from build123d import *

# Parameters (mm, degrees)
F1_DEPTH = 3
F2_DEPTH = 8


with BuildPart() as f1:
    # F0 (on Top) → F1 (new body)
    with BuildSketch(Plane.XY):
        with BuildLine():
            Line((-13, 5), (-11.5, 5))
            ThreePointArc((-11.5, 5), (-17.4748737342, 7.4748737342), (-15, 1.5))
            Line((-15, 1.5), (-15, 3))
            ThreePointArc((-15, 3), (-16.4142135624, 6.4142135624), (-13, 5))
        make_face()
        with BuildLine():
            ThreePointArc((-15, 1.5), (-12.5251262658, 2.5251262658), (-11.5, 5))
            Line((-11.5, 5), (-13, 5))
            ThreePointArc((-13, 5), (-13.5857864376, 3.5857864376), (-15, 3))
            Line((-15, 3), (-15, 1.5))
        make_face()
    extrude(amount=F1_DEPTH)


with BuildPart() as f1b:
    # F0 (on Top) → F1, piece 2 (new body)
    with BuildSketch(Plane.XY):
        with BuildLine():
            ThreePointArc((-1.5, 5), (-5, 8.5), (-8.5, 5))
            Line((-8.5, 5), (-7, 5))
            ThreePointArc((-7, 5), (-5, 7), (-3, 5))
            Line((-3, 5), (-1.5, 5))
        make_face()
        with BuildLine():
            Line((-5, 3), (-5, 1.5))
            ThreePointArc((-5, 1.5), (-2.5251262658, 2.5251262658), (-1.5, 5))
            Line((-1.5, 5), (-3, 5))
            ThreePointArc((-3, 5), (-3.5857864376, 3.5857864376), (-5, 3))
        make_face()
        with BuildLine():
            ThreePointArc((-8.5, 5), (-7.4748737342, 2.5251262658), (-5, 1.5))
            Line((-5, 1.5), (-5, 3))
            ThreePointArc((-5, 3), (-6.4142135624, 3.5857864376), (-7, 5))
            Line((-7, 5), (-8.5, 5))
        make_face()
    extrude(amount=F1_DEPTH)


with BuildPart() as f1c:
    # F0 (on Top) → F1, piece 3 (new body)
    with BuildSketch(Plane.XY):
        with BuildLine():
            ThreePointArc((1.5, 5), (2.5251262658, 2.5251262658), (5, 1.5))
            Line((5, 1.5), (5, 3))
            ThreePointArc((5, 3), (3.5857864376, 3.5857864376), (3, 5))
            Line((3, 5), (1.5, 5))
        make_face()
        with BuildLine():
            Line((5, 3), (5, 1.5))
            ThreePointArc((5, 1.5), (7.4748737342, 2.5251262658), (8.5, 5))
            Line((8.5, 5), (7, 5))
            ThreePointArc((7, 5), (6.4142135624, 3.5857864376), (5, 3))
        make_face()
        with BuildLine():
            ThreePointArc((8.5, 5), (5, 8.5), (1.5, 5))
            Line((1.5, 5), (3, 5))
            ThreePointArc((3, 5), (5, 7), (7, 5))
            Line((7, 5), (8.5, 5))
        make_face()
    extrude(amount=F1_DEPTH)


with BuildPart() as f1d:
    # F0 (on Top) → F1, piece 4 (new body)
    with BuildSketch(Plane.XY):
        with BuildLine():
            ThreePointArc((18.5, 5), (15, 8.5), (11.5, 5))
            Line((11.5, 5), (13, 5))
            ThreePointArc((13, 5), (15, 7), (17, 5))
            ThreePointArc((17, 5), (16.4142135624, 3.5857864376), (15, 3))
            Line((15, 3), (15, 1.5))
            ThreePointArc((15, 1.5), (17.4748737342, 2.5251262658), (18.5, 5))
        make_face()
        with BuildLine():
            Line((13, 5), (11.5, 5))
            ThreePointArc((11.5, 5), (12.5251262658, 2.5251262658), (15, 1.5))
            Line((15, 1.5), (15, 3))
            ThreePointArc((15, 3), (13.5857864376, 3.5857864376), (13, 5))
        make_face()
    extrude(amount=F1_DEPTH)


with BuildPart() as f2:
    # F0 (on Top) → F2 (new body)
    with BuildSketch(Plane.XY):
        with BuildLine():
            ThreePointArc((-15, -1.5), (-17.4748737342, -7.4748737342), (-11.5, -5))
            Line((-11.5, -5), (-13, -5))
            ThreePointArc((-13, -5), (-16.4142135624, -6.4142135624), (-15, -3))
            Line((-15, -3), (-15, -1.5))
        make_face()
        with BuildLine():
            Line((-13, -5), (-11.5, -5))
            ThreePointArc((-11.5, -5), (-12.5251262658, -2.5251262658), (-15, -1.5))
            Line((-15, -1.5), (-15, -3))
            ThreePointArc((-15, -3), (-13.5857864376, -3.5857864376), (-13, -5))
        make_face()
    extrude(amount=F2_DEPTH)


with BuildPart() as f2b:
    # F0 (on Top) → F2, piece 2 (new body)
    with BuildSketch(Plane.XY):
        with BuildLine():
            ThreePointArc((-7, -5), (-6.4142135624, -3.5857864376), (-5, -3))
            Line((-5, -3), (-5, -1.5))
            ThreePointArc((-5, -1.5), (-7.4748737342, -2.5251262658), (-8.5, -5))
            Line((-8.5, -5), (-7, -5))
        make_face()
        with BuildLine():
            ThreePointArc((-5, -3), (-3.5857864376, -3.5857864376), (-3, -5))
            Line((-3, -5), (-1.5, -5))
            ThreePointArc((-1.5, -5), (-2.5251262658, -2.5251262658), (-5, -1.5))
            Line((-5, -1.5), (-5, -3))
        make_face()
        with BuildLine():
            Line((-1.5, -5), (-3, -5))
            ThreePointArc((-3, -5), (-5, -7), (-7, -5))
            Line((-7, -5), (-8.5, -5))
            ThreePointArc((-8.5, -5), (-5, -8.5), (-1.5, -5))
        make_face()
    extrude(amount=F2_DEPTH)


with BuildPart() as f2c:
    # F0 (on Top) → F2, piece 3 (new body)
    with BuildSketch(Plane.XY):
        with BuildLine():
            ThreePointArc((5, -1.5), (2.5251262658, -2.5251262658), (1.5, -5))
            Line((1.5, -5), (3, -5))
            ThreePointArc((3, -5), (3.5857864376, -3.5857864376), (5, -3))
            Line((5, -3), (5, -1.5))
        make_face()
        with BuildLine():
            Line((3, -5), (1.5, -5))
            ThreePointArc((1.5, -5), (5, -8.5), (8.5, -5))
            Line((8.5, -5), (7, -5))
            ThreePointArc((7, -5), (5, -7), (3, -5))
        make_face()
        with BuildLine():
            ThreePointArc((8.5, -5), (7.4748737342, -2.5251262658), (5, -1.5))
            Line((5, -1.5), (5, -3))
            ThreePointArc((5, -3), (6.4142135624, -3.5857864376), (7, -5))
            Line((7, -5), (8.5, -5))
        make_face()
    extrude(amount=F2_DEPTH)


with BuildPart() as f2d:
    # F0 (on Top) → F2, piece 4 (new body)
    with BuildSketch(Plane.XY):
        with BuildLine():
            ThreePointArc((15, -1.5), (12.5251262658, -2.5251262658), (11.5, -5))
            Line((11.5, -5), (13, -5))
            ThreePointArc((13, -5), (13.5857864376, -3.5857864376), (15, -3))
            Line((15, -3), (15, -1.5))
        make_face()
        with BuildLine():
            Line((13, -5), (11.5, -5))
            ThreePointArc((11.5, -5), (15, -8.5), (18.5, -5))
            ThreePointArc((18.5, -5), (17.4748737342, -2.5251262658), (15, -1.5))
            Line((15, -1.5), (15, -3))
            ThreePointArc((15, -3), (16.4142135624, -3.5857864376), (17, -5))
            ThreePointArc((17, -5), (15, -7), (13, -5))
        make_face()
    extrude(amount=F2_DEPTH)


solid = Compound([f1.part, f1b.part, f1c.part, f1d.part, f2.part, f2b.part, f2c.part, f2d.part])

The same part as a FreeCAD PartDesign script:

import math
import FreeCAD as App
import Part
import Sketcher

V = App.Vector
Q = App.Units.Quantity

doc = App.newDocument("Part")
body = doc.addObject("PartDesign::Body", "Body")

# Sketch on XY plane
sketch1 = body.newObject("Sketcher::SketchObject", "Sketch")
sketch1.AttachmentSupport = (doc.getObject("XY_Plane"), [""])
sketch1.MapMode = "FlatFace"
sketch1.addGeometry(Part.ArcOfCircle(Part.Circle(V(-15, 5, 0), V(0, 0, 1), 3.5), math.radians(0), math.radians(270)), False)
sketch1.addGeometry(Part.ArcOfCircle(Part.Circle(V(-15, 5, 0), V(0, 0, 1), 3.5), math.radians(-90), math.radians(0)), False)
sketch1.addGeometry(Part.ArcOfCircle(Part.Circle(V(-15, 5, 0), V(0, 0, 1), 2), math.radians(0), math.radians(270)), False)
sketch1.addGeometry(Part.ArcOfCircle(Part.Circle(V(-15, 5, 0), V(0, 0, 1), 2), math.radians(-90), math.radians(0)), False)
sketch1.addConstraint(Sketcher.Constraint("Tangent", 0, 1, 1, 2))
sketch1.addConstraint(Sketcher.Constraint("Coincident", 1, 1, 0, 2))
sketch1.addConstraint(Sketcher.Constraint("Tangent", 2, 1, 3, 2))
sketch1.addConstraint(Sketcher.Constraint("Coincident", 3, 1, 2, 2))
sketch1.addConstraint(Sketcher.Constraint("Coincident", 2, 3, 0, 3))
sketch1.addConstraint(Sketcher.Constraint("Horizontal", 3, 3, 0, 1))
sketch1.addConstraint(Sketcher.Constraint("Horizontal", 0, 1, 2, 1))
sketch1.addConstraint(Sketcher.Constraint("Vertical", 3, 3, 1, 1))
sketch1.addConstraint(Sketcher.Constraint("Vertical", 1, 1, 3, 1))
sketch1.addConstraint(Sketcher.Constraint("Radius", 2, Q("2 mm")))
sketch1.addConstraint(Sketcher.Constraint("Radius", 0, Q("3.5 mm")))
sketch1.addConstraint(Sketcher.Constraint("DistanceX", 0, 3, -1, 1, Q("15 mm")))
sketch1.addConstraint(Sketcher.Constraint("DistanceY", -1, 1, 0, 3, Q("5 mm")))
pad1 = body.newObject("PartDesign::Pad", "Pad")
pad1.Profile = sketch1
pad1.Length = 3
body2 = doc.addObject("PartDesign::Body", "Body001")

# Sketch on XY plane
sketch2 = body2.newObject("Sketcher::SketchObject", "Sketch001")
sketch2.AttachmentSupport = (doc.getObject("XY_Plane001"), [""])
sketch2.MapMode = "FlatFace"
sketch2.addGeometry(Part.ArcOfCircle(Part.Circle(V(-5, 5, 0), V(0, 0, 1), 3.5), math.radians(0), math.radians(180)), False)
sketch2.addGeometry(Part.ArcOfCircle(Part.Circle(V(-5, 5, 0), V(0, 0, 1), 3.5), math.radians(180), math.radians(270)), False)
sketch2.addGeometry(Part.ArcOfCircle(Part.Circle(V(-5, 5, 0), V(0, 0, 1), 3.5), math.radians(-90), math.radians(0)), False)
sketch2.addGeometry(Part.ArcOfCircle(Part.Circle(V(-5, 5, 0), V(0, 0, 1), 2), math.radians(0), math.radians(180)), False)
sketch2.addGeometry(Part.ArcOfCircle(Part.Circle(V(-5, 5, 0), V(0, 0, 1), 2), math.radians(-90), math.radians(0)), False)
sketch2.addGeometry(Part.ArcOfCircle(Part.Circle(V(-5, 5, 0), V(0, 0, 1), 2), math.radians(180), math.radians(270)), False)
sketch2.addConstraint(Sketcher.Constraint("Tangent", 0, 2, 1, 1))
sketch2.addConstraint(Sketcher.Constraint("Tangent", 1, 2, 2, 1))
sketch2.addConstraint(Sketcher.Constraint("Tangent", 2, 2, 0, 1))
sketch2.addConstraint(Sketcher.Constraint("Tangent", 3, 1, 4, 2))
sketch2.addConstraint(Sketcher.Constraint("Tangent", 4, 1, 5, 2))
sketch2.addConstraint(Sketcher.Constraint("Tangent", 5, 1, 3, 2))
sketch2.addConstraint(Sketcher.Constraint("Coincident", 3, 3, 0, 3))
sketch2.addConstraint(Sketcher.Constraint("Horizontal", 5, 3, 0, 2))
sketch2.addConstraint(Sketcher.Constraint("Horizontal", 0, 2, 2, 2))
sketch2.addConstraint(Sketcher.Constraint("Horizontal", 2, 2, 3, 1))
sketch2.addConstraint(Sketcher.Constraint("Horizontal", 3, 1, 5, 1))
sketch2.addConstraint(Sketcher.Constraint("Vertical", 5, 3, 1, 2))
sketch2.addConstraint(Sketcher.Constraint("Vertical", 1, 2, 4, 1))
sketch2.addConstraint(Sketcher.Constraint("Radius", 3, Q("2 mm")))
sketch2.addConstraint(Sketcher.Constraint("Radius", 0, Q("3.5 mm")))
sketch2.addConstraint(Sketcher.Constraint("DistanceX", 0, 3, -1, 1, Q("5 mm")))
sketch2.addConstraint(Sketcher.Constraint("DistanceY", -1, 1, 0, 3, Q("5 mm")))
pad2 = body2.newObject("PartDesign::Pad", "Pad001")
pad2.Profile = sketch2
pad2.Length = 3
body3 = doc.addObject("PartDesign::Body", "Body002")

# Sketch on XY plane
sketch3 = body3.newObject("Sketcher::SketchObject", "Sketch002")
sketch3.AttachmentSupport = (doc.getObject("XY_Plane002"), [""])
sketch3.MapMode = "FlatFace"
sketch3.addGeometry(Part.ArcOfCircle(Part.Circle(V(5, 5, 0), V(0, 0, 1), 3.5), math.radians(180), math.radians(270)), False)
sketch3.addGeometry(Part.ArcOfCircle(Part.Circle(V(5, 5, 0), V(0, 0, 1), 3.5), math.radians(-90), math.radians(0)), False)
sketch3.addGeometry(Part.ArcOfCircle(Part.Circle(V(5, 5, 0), V(0, 0, 1), 3.5), math.radians(0), math.radians(180)), False)
sketch3.addGeometry(Part.ArcOfCircle(Part.Circle(V(5, 5, 0), V(0, 0, 1), 2), math.radians(-90), math.radians(0)), False)
sketch3.addGeometry(Part.ArcOfCircle(Part.Circle(V(5, 5, 0), V(0, 0, 1), 2), math.radians(180), math.radians(270)), False)
sketch3.addGeometry(Part.ArcOfCircle(Part.Circle(V(5, 5, 0), V(0, 0, 1), 2), math.radians(0), math.radians(180)), False)
sketch3.addConstraint(Sketcher.Constraint("Tangent", 0, 2, 1, 1))
sketch3.addConstraint(Sketcher.Constraint("Tangent", 1, 2, 2, 1))
sketch3.addConstraint(Sketcher.Constraint("Tangent", 2, 2, 0, 1))
sketch3.addConstraint(Sketcher.Constraint("Tangent", 3, 1, 4, 2))
sketch3.addConstraint(Sketcher.Constraint("Tangent", 4, 1, 5, 2))
sketch3.addConstraint(Sketcher.Constraint("Tangent", 5, 1, 3, 2))
sketch3.addConstraint(Sketcher.Constraint("Coincident", 3, 3, 0, 3))
sketch3.addConstraint(Sketcher.Constraint("Horizontal", 5, 3, 1, 2))
sketch3.addConstraint(Sketcher.Constraint("Horizontal", 1, 2, 2, 2))
sketch3.addConstraint(Sketcher.Constraint("Horizontal", 2, 2, 4, 1))
sketch3.addConstraint(Sketcher.Constraint("Horizontal", 4, 1, 5, 1))
sketch3.addConstraint(Sketcher.Constraint("Vertical", 5, 3, 0, 2))
sketch3.addConstraint(Sketcher.Constraint("Vertical", 0, 2, 3, 1))
sketch3.addConstraint(Sketcher.Constraint("Radius", 3, Q("2 mm")))
sketch3.addConstraint(Sketcher.Constraint("Radius", 0, Q("3.5 mm")))
sketch3.addConstraint(Sketcher.Constraint("DistanceX", -1, 1, 0, 3, Q("5 mm")))
sketch3.addConstraint(Sketcher.Constraint("DistanceY", -1, 1, 0, 3, Q("5 mm")))
pad3 = body3.newObject("PartDesign::Pad", "Pad002")
pad3.Profile = sketch3
pad3.Length = 3
body4 = doc.addObject("PartDesign::Body", "Body003")

# Sketch on XY plane
sketch4 = body4.newObject("Sketcher::SketchObject", "Sketch003")
sketch4.AttachmentSupport = (doc.getObject("XY_Plane003"), [""])
sketch4.MapMode = "FlatFace"
sketch4.addGeometry(Part.ArcOfCircle(Part.Circle(V(15, 5, 0), V(0, 0, 1), 3.5), math.radians(0), math.radians(180)), False)
sketch4.addGeometry(Part.ArcOfCircle(Part.Circle(V(15, 5, 0), V(0, 0, 1), 3.5), math.radians(180), math.radians(270)), False)
sketch4.addGeometry(Part.ArcOfCircle(Part.Circle(V(15, 5, 0), V(0, 0, 1), 3.5), math.radians(-90), math.radians(0)), False)
sketch4.addGeometry(Part.ArcOfCircle(Part.Circle(V(15, 5, 0), V(0, 0, 1), 2), math.radians(0), math.radians(180)), False)
sketch4.addGeometry(Part.ArcOfCircle(Part.Circle(V(15, 5, 0), V(0, 0, 1), 2), math.radians(-90), math.radians(0)), False)
sketch4.addGeometry(Part.ArcOfCircle(Part.Circle(V(15, 5, 0), V(0, 0, 1), 2), math.radians(180), math.radians(270)), False)
sketch4.addConstraint(Sketcher.Constraint("Tangent", 0, 2, 1, 1))
sketch4.addConstraint(Sketcher.Constraint("Tangent", 1, 2, 2, 1))
sketch4.addConstraint(Sketcher.Constraint("Tangent", 2, 2, 0, 1))
sketch4.addConstraint(Sketcher.Constraint("Tangent", 3, 1, 4, 2))
sketch4.addConstraint(Sketcher.Constraint("Tangent", 4, 1, 5, 2))
sketch4.addConstraint(Sketcher.Constraint("Tangent", 5, 1, 3, 2))
sketch4.addConstraint(Sketcher.Constraint("Coincident", 3, 3, 0, 3))
sketch4.addConstraint(Sketcher.Constraint("Horizontal", 5, 3, 0, 2))
sketch4.addConstraint(Sketcher.Constraint("Horizontal", 0, 2, 2, 2))
sketch4.addConstraint(Sketcher.Constraint("Horizontal", 2, 2, 3, 1))
sketch4.addConstraint(Sketcher.Constraint("Horizontal", 3, 1, 5, 1))
sketch4.addConstraint(Sketcher.Constraint("Vertical", 5, 3, 1, 2))
sketch4.addConstraint(Sketcher.Constraint("Vertical", 1, 2, 4, 1))
sketch4.addConstraint(Sketcher.Constraint("Radius", 3, Q("2 mm")))
sketch4.addConstraint(Sketcher.Constraint("Radius", 0, Q("3.5 mm")))
sketch4.addConstraint(Sketcher.Constraint("DistanceX", -1, 1, 0, 3, Q("15 mm")))
sketch4.addConstraint(Sketcher.Constraint("DistanceY", -1, 1, 0, 3, Q("5 mm")))
pad4 = body4.newObject("PartDesign::Pad", "Pad003")
pad4.Profile = sketch4
pad4.Length = 3
body5 = doc.addObject("PartDesign::Body", "Body004")

# Sketch on XY plane
sketch5 = body5.newObject("Sketcher::SketchObject", "Sketch004")
sketch5.AttachmentSupport = (doc.getObject("XY_Plane004"), [""])
sketch5.MapMode = "FlatFace"
sketch5.addGeometry(Part.ArcOfCircle(Part.Circle(V(-15, -5, 0), V(0, 0, 1), 3.5), math.radians(90), math.radians(360)), False)
sketch5.addGeometry(Part.ArcOfCircle(Part.Circle(V(-15, -5, 0), V(0, 0, 1), 3.5), math.radians(0), math.radians(90)), False)
sketch5.addGeometry(Part.ArcOfCircle(Part.Circle(V(-15, -5, 0), V(0, 0, 1), 2), math.radians(90), math.radians(360)), False)
sketch5.addGeometry(Part.ArcOfCircle(Part.Circle(V(-15, -5, 0), V(0, 0, 1), 2), math.radians(0), math.radians(90)), False)
sketch5.addConstraint(Sketcher.Constraint("Tangent", 0, 1, 1, 2))
sketch5.addConstraint(Sketcher.Constraint("Coincident", 1, 1, 0, 2))
sketch5.addConstraint(Sketcher.Constraint("Tangent", 2, 1, 3, 2))
sketch5.addConstraint(Sketcher.Constraint("Coincident", 3, 1, 2, 2))
sketch5.addConstraint(Sketcher.Constraint("Coincident", 2, 3, 0, 3))
sketch5.addConstraint(Sketcher.Constraint("Horizontal", 3, 3, 1, 1))
sketch5.addConstraint(Sketcher.Constraint("Horizontal", 1, 1, 3, 1))
sketch5.addConstraint(Sketcher.Constraint("Vertical", 3, 3, 0, 1))
sketch5.addConstraint(Sketcher.Constraint("Vertical", 0, 1, 2, 1))
sketch5.addConstraint(Sketcher.Constraint("Radius", 2, Q("2 mm")))
sketch5.addConstraint(Sketcher.Constraint("Radius", 0, Q("3.5 mm")))
sketch5.addConstraint(Sketcher.Constraint("DistanceX", 0, 3, -1, 1, Q("15 mm")))
sketch5.addConstraint(Sketcher.Constraint("DistanceY", 0, 3, -1, 1, Q("5 mm")))
pad5 = body5.newObject("PartDesign::Pad", "Pad004")
pad5.Profile = sketch5
pad5.Length = 8
body6 = doc.addObject("PartDesign::Body", "Body005")

# Sketch on XY plane
sketch6 = body6.newObject("Sketcher::SketchObject", "Sketch005")
sketch6.AttachmentSupport = (doc.getObject("XY_Plane005"), [""])
sketch6.MapMode = "FlatFace"
sketch6.addGeometry(Part.ArcOfCircle(Part.Circle(V(-5, -5, 0), V(0, 0, 1), 3.5), math.radians(0), math.radians(90)), False)
sketch6.addGeometry(Part.ArcOfCircle(Part.Circle(V(-5, -5, 0), V(0, 0, 1), 3.5), math.radians(90), math.radians(180)), False)
sketch6.addGeometry(Part.ArcOfCircle(Part.Circle(V(-5, -5, 0), V(0, 0, 1), 3.5), math.radians(180), math.radians(360)), False)
sketch6.addGeometry(Part.ArcOfCircle(Part.Circle(V(-5, -5, 0), V(0, 0, 1), 2), math.radians(90), math.radians(180)), False)
sketch6.addGeometry(Part.ArcOfCircle(Part.Circle(V(-5, -5, 0), V(0, 0, 1), 2), math.radians(0), math.radians(90)), False)
sketch6.addGeometry(Part.ArcOfCircle(Part.Circle(V(-5, -5, 0), V(0, 0, 1), 2), math.radians(180), math.radians(360)), False)
sketch6.addConstraint(Sketcher.Constraint("Tangent", 0, 2, 1, 1))
sketch6.addConstraint(Sketcher.Constraint("Tangent", 1, 2, 2, 1))
sketch6.addConstraint(Sketcher.Constraint("Tangent", 2, 2, 0, 1))
sketch6.addConstraint(Sketcher.Constraint("Tangent", 3, 1, 4, 2))
sketch6.addConstraint(Sketcher.Constraint("Tangent", 4, 1, 5, 2))
sketch6.addConstraint(Sketcher.Constraint("Tangent", 5, 1, 3, 2))
sketch6.addConstraint(Sketcher.Constraint("Coincident", 3, 3, 0, 3))
sketch6.addConstraint(Sketcher.Constraint("Horizontal", 5, 3, 1, 2))
sketch6.addConstraint(Sketcher.Constraint("Horizontal", 1, 2, 2, 2))
sketch6.addConstraint(Sketcher.Constraint("Horizontal", 2, 2, 4, 1))
sketch6.addConstraint(Sketcher.Constraint("Horizontal", 4, 1, 5, 1))
sketch6.addConstraint(Sketcher.Constraint("Vertical", 5, 3, 0, 2))
sketch6.addConstraint(Sketcher.Constraint("Vertical", 0, 2, 3, 1))
sketch6.addConstraint(Sketcher.Constraint("Radius", 3, Q("2 mm")))
sketch6.addConstraint(Sketcher.Constraint("Radius", 0, Q("3.5 mm")))
sketch6.addConstraint(Sketcher.Constraint("DistanceX", 0, 3, -1, 1, Q("5 mm")))
sketch6.addConstraint(Sketcher.Constraint("DistanceY", 0, 3, -1, 1, Q("5 mm")))
pad6 = body6.newObject("PartDesign::Pad", "Pad005")
pad6.Profile = sketch6
pad6.Length = 8
body7 = doc.addObject("PartDesign::Body", "Body006")

# Sketch on XY plane
sketch7 = body7.newObject("Sketcher::SketchObject", "Sketch006")
sketch7.AttachmentSupport = (doc.getObject("XY_Plane006"), [""])
sketch7.MapMode = "FlatFace"
sketch7.addGeometry(Part.ArcOfCircle(Part.Circle(V(5, -5, 0), V(0, 0, 1), 3.5), math.radians(90), math.radians(180)), False)
sketch7.addGeometry(Part.ArcOfCircle(Part.Circle(V(5, -5, 0), V(0, 0, 1), 3.5), math.radians(180), math.radians(360)), False)
sketch7.addGeometry(Part.ArcOfCircle(Part.Circle(V(5, -5, 0), V(0, 0, 1), 3.5), math.radians(0), math.radians(90)), False)
sketch7.addGeometry(Part.ArcOfCircle(Part.Circle(V(5, -5, 0), V(0, 0, 1), 2), math.radians(180), math.radians(360)), False)
sketch7.addGeometry(Part.ArcOfCircle(Part.Circle(V(5, -5, 0), V(0, 0, 1), 2), math.radians(90), math.radians(180)), False)
sketch7.addGeometry(Part.ArcOfCircle(Part.Circle(V(5, -5, 0), V(0, 0, 1), 2), math.radians(0), math.radians(90)), False)
sketch7.addConstraint(Sketcher.Constraint("Tangent", 0, 2, 1, 1))
sketch7.addConstraint(Sketcher.Constraint("Tangent", 1, 2, 2, 1))
sketch7.addConstraint(Sketcher.Constraint("Tangent", 2, 2, 0, 1))
sketch7.addConstraint(Sketcher.Constraint("Tangent", 3, 1, 4, 2))
sketch7.addConstraint(Sketcher.Constraint("Tangent", 4, 1, 5, 2))
sketch7.addConstraint(Sketcher.Constraint("Tangent", 5, 1, 3, 2))
sketch7.addConstraint(Sketcher.Constraint("Coincident", 3, 3, 0, 3))
sketch7.addConstraint(Sketcher.Constraint("Horizontal", 5, 3, 0, 2))
sketch7.addConstraint(Sketcher.Constraint("Horizontal", 0, 2, 1, 2))
sketch7.addConstraint(Sketcher.Constraint("Horizontal", 1, 2, 3, 1))
sketch7.addConstraint(Sketcher.Constraint("Horizontal", 3, 1, 5, 1))
sketch7.addConstraint(Sketcher.Constraint("Vertical", 5, 3, 2, 2))
sketch7.addConstraint(Sketcher.Constraint("Vertical", 2, 2, 4, 1))
sketch7.addConstraint(Sketcher.Constraint("Radius", 3, Q("2 mm")))
sketch7.addConstraint(Sketcher.Constraint("Radius", 0, Q("3.5 mm")))
sketch7.addConstraint(Sketcher.Constraint("DistanceX", -1, 1, 0, 3, Q("5 mm")))
sketch7.addConstraint(Sketcher.Constraint("DistanceY", 0, 3, -1, 1, Q("5 mm")))
pad7 = body7.newObject("PartDesign::Pad", "Pad006")
pad7.Profile = sketch7
pad7.Length = 8
body8 = doc.addObject("PartDesign::Body", "Body007")

# Sketch on XY plane
sketch8 = body8.newObject("Sketcher::SketchObject", "Sketch007")
sketch8.AttachmentSupport = (doc.getObject("XY_Plane007"), [""])
sketch8.MapMode = "FlatFace"
sketch8.addGeometry(Part.ArcOfCircle(Part.Circle(V(15, -5, 0), V(0, 0, 1), 3.5), math.radians(90), math.radians(180)), False)
sketch8.addGeometry(Part.ArcOfCircle(Part.Circle(V(15, -5, 0), V(0, 0, 1), 3.5), math.radians(180), math.radians(360)), False)
sketch8.addGeometry(Part.ArcOfCircle(Part.Circle(V(15, -5, 0), V(0, 0, 1), 3.5), math.radians(0), math.radians(90)), False)
sketch8.addGeometry(Part.ArcOfCircle(Part.Circle(V(15, -5, 0), V(0, 0, 1), 2), math.radians(90), math.radians(180)), False)
sketch8.addGeometry(Part.ArcOfCircle(Part.Circle(V(15, -5, 0), V(0, 0, 1), 2), math.radians(0), math.radians(90)), False)
sketch8.addGeometry(Part.ArcOfCircle(Part.Circle(V(15, -5, 0), V(0, 0, 1), 2), math.radians(180), math.radians(360)), False)
sketch8.addConstraint(Sketcher.Constraint("Tangent", 0, 2, 1, 1))
sketch8.addConstraint(Sketcher.Constraint("Tangent", 1, 2, 2, 1))
sketch8.addConstraint(Sketcher.Constraint("Tangent", 2, 2, 0, 1))
sketch8.addConstraint(Sketcher.Constraint("Tangent", 3, 1, 4, 2))
sketch8.addConstraint(Sketcher.Constraint("Tangent", 4, 1, 5, 2))
sketch8.addConstraint(Sketcher.Constraint("Tangent", 5, 1, 3, 2))
sketch8.addConstraint(Sketcher.Constraint("Coincident", 3, 3, 0, 3))
sketch8.addConstraint(Sketcher.Constraint("Horizontal", 5, 3, 0, 2))
sketch8.addConstraint(Sketcher.Constraint("Horizontal", 0, 2, 1, 2))
sketch8.addConstraint(Sketcher.Constraint("Horizontal", 1, 2, 4, 1))
sketch8.addConstraint(Sketcher.Constraint("Horizontal", 4, 1, 5, 1))
sketch8.addConstraint(Sketcher.Constraint("Vertical", 5, 3, 2, 2))
sketch8.addConstraint(Sketcher.Constraint("Vertical", 2, 2, 3, 1))
sketch8.addConstraint(Sketcher.Constraint("Radius", 3, Q("2 mm")))
sketch8.addConstraint(Sketcher.Constraint("Radius", 0, Q("3.5 mm")))
sketch8.addConstraint(Sketcher.Constraint("DistanceX", -1, 1, 0, 3, Q("15 mm")))
sketch8.addConstraint(Sketcher.Constraint("DistanceY", 0, 3, -1, 1, Q("5 mm")))
pad8 = body8.newObject("PartDesign::Pad", "Pad007")
pad8.Profile = sketch8
pad8.Length = 8

doc.recompute()
